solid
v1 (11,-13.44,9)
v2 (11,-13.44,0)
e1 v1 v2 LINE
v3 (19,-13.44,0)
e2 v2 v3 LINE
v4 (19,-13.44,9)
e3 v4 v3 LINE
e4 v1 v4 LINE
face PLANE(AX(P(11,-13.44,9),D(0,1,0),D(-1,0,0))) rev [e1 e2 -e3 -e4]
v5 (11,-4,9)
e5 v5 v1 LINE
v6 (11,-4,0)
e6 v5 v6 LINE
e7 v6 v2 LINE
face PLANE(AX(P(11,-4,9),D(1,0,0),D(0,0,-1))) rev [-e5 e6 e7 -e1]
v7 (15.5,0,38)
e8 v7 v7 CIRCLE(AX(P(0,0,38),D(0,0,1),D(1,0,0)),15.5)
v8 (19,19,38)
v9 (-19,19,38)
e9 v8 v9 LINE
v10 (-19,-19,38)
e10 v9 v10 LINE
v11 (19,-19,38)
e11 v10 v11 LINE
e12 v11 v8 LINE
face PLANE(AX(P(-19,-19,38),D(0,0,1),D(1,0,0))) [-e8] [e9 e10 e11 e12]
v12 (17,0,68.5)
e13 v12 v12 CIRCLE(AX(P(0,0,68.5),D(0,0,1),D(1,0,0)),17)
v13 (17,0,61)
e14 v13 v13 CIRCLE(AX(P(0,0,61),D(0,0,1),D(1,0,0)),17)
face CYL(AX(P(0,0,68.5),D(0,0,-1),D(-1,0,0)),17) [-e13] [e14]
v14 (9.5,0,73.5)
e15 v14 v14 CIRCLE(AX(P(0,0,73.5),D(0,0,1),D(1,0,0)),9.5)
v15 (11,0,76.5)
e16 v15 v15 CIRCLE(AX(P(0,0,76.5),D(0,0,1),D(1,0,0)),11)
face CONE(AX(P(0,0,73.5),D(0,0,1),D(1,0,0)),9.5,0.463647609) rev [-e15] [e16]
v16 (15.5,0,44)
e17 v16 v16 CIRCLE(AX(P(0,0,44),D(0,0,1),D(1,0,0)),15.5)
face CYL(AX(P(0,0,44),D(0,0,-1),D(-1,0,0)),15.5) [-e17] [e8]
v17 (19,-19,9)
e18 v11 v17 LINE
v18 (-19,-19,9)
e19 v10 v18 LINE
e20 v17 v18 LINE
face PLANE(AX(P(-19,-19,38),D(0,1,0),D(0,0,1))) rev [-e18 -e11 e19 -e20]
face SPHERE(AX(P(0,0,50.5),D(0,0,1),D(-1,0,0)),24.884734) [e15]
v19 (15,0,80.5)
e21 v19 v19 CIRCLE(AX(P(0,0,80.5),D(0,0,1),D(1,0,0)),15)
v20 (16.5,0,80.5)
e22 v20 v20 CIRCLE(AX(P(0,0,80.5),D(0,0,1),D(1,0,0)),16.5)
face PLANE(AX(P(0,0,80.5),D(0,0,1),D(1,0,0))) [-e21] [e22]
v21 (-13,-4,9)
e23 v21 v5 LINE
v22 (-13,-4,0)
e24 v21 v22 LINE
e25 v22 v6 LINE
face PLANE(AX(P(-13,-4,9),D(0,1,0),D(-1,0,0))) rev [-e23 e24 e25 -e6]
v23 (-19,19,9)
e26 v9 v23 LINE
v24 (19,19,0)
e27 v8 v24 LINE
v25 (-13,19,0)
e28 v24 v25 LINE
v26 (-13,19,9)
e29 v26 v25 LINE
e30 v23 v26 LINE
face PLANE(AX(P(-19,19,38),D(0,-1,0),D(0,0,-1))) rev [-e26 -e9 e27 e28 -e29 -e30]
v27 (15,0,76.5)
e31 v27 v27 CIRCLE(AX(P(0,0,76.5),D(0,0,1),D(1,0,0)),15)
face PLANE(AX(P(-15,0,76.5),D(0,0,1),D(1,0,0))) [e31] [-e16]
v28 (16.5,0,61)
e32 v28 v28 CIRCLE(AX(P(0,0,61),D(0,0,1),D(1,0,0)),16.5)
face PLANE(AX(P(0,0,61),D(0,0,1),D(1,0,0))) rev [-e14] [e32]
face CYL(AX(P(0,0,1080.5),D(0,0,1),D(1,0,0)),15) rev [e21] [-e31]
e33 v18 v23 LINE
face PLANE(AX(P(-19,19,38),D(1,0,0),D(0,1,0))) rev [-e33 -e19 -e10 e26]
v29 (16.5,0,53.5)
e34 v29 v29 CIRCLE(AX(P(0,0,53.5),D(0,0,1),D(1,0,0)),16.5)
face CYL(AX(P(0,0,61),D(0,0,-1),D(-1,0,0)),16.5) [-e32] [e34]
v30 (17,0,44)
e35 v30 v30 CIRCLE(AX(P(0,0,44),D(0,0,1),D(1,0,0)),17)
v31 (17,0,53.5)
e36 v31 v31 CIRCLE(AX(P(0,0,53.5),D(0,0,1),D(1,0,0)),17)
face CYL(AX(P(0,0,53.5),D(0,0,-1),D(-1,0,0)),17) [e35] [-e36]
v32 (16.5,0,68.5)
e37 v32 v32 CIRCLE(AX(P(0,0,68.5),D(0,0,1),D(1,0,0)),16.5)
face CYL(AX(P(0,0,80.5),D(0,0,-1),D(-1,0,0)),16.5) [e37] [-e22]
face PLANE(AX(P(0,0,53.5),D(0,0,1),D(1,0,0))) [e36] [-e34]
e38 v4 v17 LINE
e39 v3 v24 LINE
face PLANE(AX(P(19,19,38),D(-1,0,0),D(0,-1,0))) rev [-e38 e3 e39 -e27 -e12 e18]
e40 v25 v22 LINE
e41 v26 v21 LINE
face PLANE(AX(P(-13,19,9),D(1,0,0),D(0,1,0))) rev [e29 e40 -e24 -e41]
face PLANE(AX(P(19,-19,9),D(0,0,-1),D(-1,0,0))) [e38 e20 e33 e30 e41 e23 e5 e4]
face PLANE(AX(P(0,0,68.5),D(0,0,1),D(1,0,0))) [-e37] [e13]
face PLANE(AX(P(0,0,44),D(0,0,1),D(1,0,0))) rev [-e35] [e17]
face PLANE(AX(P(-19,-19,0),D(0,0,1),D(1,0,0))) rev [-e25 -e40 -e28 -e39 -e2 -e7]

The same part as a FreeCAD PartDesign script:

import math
import FreeCAD as App
import Part
import Sketcher
from FreeCAD import Vector
Q = App.Units.Quantity

doc = App.newDocument("Part")
body = doc.addObject("PartDesign::Body", "Body")

# Sketch on XY plane
sketch1 = doc.addObject("Sketcher::SketchObject", "Sketch")
body.addObject(sketch1)
sketch1.AttachmentSupport = (doc.XY_Plane, [""])
sketch1.MapMode = "FlatFace"
sketch1.addGeometry(Part.LineSegment(Vector(-19, 19, 0), Vector(-19, -19, 0)), False)
sketch1.addGeometry(Part.LineSegment(Vector(-19, -19, 0), Vector(19, -19, 0)), False)
sketch1.addGeometry(Part.LineSegment(Vector(19, -19, 0), Vector(19, 19, 0)), False)
sketch1.addGeometry(Part.LineSegment(Vector(19, 19, 0), Vector(-19, 19, 0)), False)
sketch1.addConstraint(Sketcher.Constraint("Coincident", 0, 2, 1, 1))
sketch1.addConstraint(Sketcher.Constraint("Coincident", 1, 2, 2, 1))
sketch1.addConstraint(Sketcher.Constraint("Coincident", 2, 2, 3, 1))
sketch1.addConstraint(Sketcher.Constraint("Coincident", 3, 2, 0, 1))
sketch1.addConstraint(Sketcher.Constraint("Vertical", 0))
sketch1.addConstraint(Sketcher.Constraint("Horizontal", 1))
sketch1.addConstraint(Sketcher.Constraint("Vertical", 2))
sketch1.addConstraint(Sketcher.Constraint("Horizontal", 3))
sketch1.addConstraint(Sketcher.Constraint("Symmetric", 0, 2, 2, 2, -1, 1))
sketch1.addConstraint(Sketcher.Constraint("Equal", 3, 0))
sketch1.addConstraint(Sketcher.Constraint("DistanceX", 1, 1, 1, 2, Q("38 mm")))
pad1 = doc.addObject("PartDesign::Pad", "Pad")
body.addObject(pad1)
pad1.Profile = sketch1
pad1.Length = 38

# Sketch on XY plane
sketch2 = doc.addObject("Sketcher::SketchObject", "Sketch001")
body.addObject(sketch2)
sketch2.AttachmentSupport = (doc.XY_Plane, [""])
sketch2.MapMode = "FlatFace"
sketch2.AttachmentOffset = App.Placement(Vector(0, 0, 38), App.Rotation())
sketch2.addGeometry(Part.Circle(Vector(0, 0, 0), Vector(0, 0, 1), 16), False)
sketch2.addConstraint(Sketcher.Constraint("Coincident", 0, 3, -1, 1))
sketch2.addConstraint(Sketcher.Constraint("Diameter", 0, Q("31 mm")))
pad2 = doc.addObject("PartDesign::Pad", "Pad001")
body.addObject(pad2)
pad2.Profile = sketch2
pad2.Length = 6

# Sketch on XY plane
sketch3 = doc.addObject("Sketcher::SketchObject", "Sketch002")
body.addObject(sketch3)
sketch3.AttachmentSupport = (doc.XY_Plane, [""])
sketch3.MapMode = "FlatFace"
sketch3.AttachmentOffset = App.Placement(Vector(0, 0, 44), App.Rotation())
sketch3.addGeometry(Part.Circle(Vector(0, 0, 0), Vector(0, 0, 1), 17), False)
sketch3.addConstraint(Sketcher.Constraint("Coincident", 0, 3, -1, 1))
sketch3.addConstraint(Sketcher.Constraint("Diameter", 0, Q("34 mm")))
pad3 = doc.addObject("PartDesign::Pad", "Pad002")
body.addObject(pad3)
pad3.Profile = sketch3
pad3.Length = 9.5

# Sketch on XY plane
sketch4 = doc.addObject("Sketcher::SketchObject", "Sketch003")
body.addObject(sketch4)
sketch4.AttachmentSupport = (doc.XY_Plane, [""])
sketch4.MapMode = "FlatFace"
sketch4.AttachmentOffset = App.Placement(Vector(0, 0, 53.5), App.Rotation())
sketch4.addGeometry(Part.Circle(Vector(0, 0, 0), Vector(0, 0, 1), 16), False)
sketch4.addConstraint(Sketcher.Constraint("Coincident", 0, 3, -1, 1))
sketch4.addConstraint(Sketcher.Constraint("Diameter", 0, Q("33 mm")))
pad4 = doc.addObject("PartDesign::Pad", "Pad003")
body.addObject(pad4)
pad4.Profile = sketch4
pad4.Length = 7.5

# Sketch on XY plane
sketch5 = doc.addObject("Sketcher::SketchObject", "Sketch004")
body.addObject(sketch5)
sketch5.AttachmentSupport = (doc.XY_Plane, [""])
sketch5.MapMode = "FlatFace"
sketch5.AttachmentOffset = App.Placement(Vector(0, 0, 61), App.Rotation())
sketch5.addGeometry(Part.Circle(Vector(0, 0, 0), Vector(0, 0, 1), 17), False)
sketch5.addConstraint(Sketcher.Constraint("Coincident", 0, 3, -1, 1))
sketch5.addConstraint(Sketcher.Constraint("Diameter", 0, Q("34 mm")))
pad5 = doc.addObject("PartDesign::Pad", "Pad004")
body.addObject(pad5)
pad5.Profile = sketch5
pad5.Length = 7.5

# Sketch on XY plane
sketch6 = doc.addObject("Sketcher::SketchObject", "Sketch005")
body.addObject(sketch6)
sketch6.AttachmentSupport = (doc.XY_Plane, [""])
sketch6.MapMode = "FlatFace"
sketch6.AttachmentOffset = App.Placement(Vector(0, 0, 68.5), App.Rotation())
sketch6.addGeometry(Part.Circle(Vector(0, 0, 0), Vector(0, 0, 1), 16), False)
sketch6.addConstraint(Sketcher.Constraint("Coincident", 0, 3, -1, 1))
sketch6.addConstraint(Sketcher.Constraint("Diameter", 0, Q("33 mm")))
pad6 = doc.addObject("PartDesign::Pad", "Pad005")
body.addObject(pad6)
pad6.Profile = sketch6
pad6.Length = 12

# Sketch on XZ plane
sketch7 = doc.addObject("Sketcher::SketchObject", "Sketch006")
body.addObject(sketch7)
sketch7.AttachmentSupport = (doc.XZ_Plane, [""])
sketch7.MapMode = "FlatFace"
sketch7.addGeometry(Part.LineSegment(Vector(-15, 80.5, 0), Vector(0, 80.5, 0)), False)
sketch7.addGeometry(Part.LineSegment(Vector(0, 80.5, 0), Vector(0, 75.4, 0)), False)
sketch7.addGeometry(Part.ArcOfCircle(Part.Circle(Vector(0, 50.5, 0), Vector(0, 0, 1), 24.9), math.radians(90), math.radians(112)), False)
sketch7.addGeometry(Part.LineSegment(Vector(-9.5, 73.5, 0), Vector(-11, 76.5, 0)), False)
sketch7.addGeometry(Part.LineSegment(Vector(-11, 76.5, 0), Vector(-15, 76.5, 0)), False)
sketch7.addGeometry(Part.LineSegment(Vector(-15, 76.5, 0), Vector(-15, 80.5, 0)), False)
sketch7.addConstraint(Sketcher.Constraint("Coincident", 0, 2, 1, 1))
sketch7.addConstraint(Sketcher.Constraint("Coincident", 1, 2, 2, 1))
sketch7.addConstraint(Sketcher.Constraint("Coincident", 2, 2, 3, 1))
sketch7.addConstraint(Sketcher.Constraint("Coincident", 3, 2, 4, 1))
sketch7.addConstraint(Sketcher.Constraint("Coincident", 4, 2, 5, 1))
sketch7.addConstraint(Sketcher.Constraint("Coincident", 5, 2, 0, 1))
sketch7.addConstraint(Sketcher.Constraint("Horizontal", 0))
sketch7.addConstraint(Sketcher.Constraint("Vertical", 1))
sketch7.addConstraint(Sketcher.Constraint("Horizontal", 4))
sketch7.addConstraint(Sketcher.Constraint("Vertical", 5))
sketch7.addConstraint(Sketcher.Constraint("PointOnObject", 2, 3, -2))
sketch7.addConstraint(Sketcher.Constraint("PointOnObject", 0, 2, -2))
sketch7.addConstraint(Sketcher.Constraint("Equal", 4, 5))
sketch7.addConstraint(Sketcher.Constraint("DistanceX", 0, 1, 0, 2, Q("15 mm")))
sketch7.addConstraint(Sketcher.Constraint("DistanceX", 4, 2, 4, 1, Q("4 mm")))
sketch7.addConstraint(Sketcher.Constraint("DistanceY", 2, 3, 0, 2, Q("30 mm")))
sketch7.addConstraint(Sketcher.Constraint("DistanceY", 2, 2, 0, 2, Q("7 mm")))
sketch7.addConstraint(Sketcher.Constraint("DistanceY", -1, 1, 2, 3, Q("50.5 mm")))
sketch7.addConstraint(Sketcher.Constraint("DistanceX", 2, 2, -1, 1, Q("9.5 mm")))
groove = doc.addObject("PartDesign::Groove", "Groove")
body.addObject(groove)
groove.Profile = sketch7
groove.ReferenceAxis = (sketch7, ["V_Axis"])
groove.Angle = 360

# Sketch on XY plane
sketch8 = doc.addObject("Sketcher::SketchObject", "Sketch007")
body.addObject(sketch8)
sketch8.AttachmentSupport = (doc.XY_Plane, [""])
sketch8.MapMode = "FlatFace"
sketch8.addGeometry(Part.LineSegment(Vector(19, -19, 0), Vector(-19, -19, 0)), False)
sketch8.addGeometry(Part.LineSegment(Vector(-19, -19, 0), Vector(-19, 19, 0)), False)
sketch8.addGeometry(Part.LineSegment(Vector(-19, 19, 0), Vector(-13, 19, 0)), False)
sketch8.addGeometry(Part.LineSegment(Vector(-13, 19, 0), Vector(-13, -4, 0)), False)
sketch8.addGeometry(Part.LineSegment(Vector(-13, -4, 0), Vector(11, -4, 0)), False)
sketch8.addGeometry(Part.LineSegment(Vector(11, -4, 0), Vector(11, -13, 0)), False)
sketch8.addGeometry(Part.LineSegment(Vector(11, -13, 0), Vector(19, -13, 0)), False)
sketch8.addGeometry(Part.LineSegment(Vector(19, -13, 0), Vector(19, -19, 0)), False)
sketch8.addConstraint(Sketcher.Constraint("Coincident", 0, 2, 1, 1))
sketch8.addConstraint(Sketcher.Constraint("Coincident", 1, 2, 2, 1))
sketch8.addConstraint(Sketcher.Constraint("Coincident", 2, 2, 3, 1))
sketch8.addConstraint(Sketcher.Constraint("Coincident", 3, 2, 4, 1))
sketch8.addConstraint(Sketcher.Constraint("Coincident", 4, 2, 5, 1))
sketch8.addConstraint(Sketcher.Constraint("Coincident", 5, 2, 6, 1))
sketch8.addConstraint(Sketcher.Constraint("Coincident", 6, 2, 7, 1))
sketch8.addConstraint(Sketcher.Constraint("Coincident", 7, 2, 0, 1))
sketch8.addConstraint(Sketcher.Constraint("Horizontal", 0))
sketch8.addConstraint(Sketcher.Constraint("Vertical", 1))
sketch8.addConstraint(Sketcher.Constraint("Horizontal", 2))
sketch8.addConstraint(Sketcher.Constraint("Vertical", 3))
sketch8.addConstraint(Sketcher.Constraint("Horizontal", 4))
sketch8.addConstraint(Sketcher.Constraint("Vertical", 5))
sketch8.addConstraint(Sketcher.Constraint("Horizontal", 6))
sketch8.addConstraint(Sketcher.Constraint("Vertical", 7))
sketch8.addConstraint(Sketcher.Constraint("Symmetric", 1, 2, 7, 2, -1, 1))
sketch8.addConstraint(Sketcher.Constraint("Equal", 0, 1))
sketch8.addConstraint(Sketcher.Constraint("DistanceX", 0, 2, 0, 1, Q("38 mm")))
sketch8.addConstraint(Sketcher.Constraint("DistanceX", 2, 1, 2, 2, Q("6 mm")))
sketch8.addConstraint(Sketcher.Constraint("DistanceX", 4, 1, 4, 2, Q("24 mm")))
sketch8.addConstraint(Sketcher.Constraint("DistanceY", 3, 2, 3, 1, Q("23 mm")))
sketch8.addConstraint(Sketcher.Constraint("DistanceY", 5, 2, 5, 1, Q("9.44 mm")))
pocket1 = doc.addObject("PartDesign::Pocket", "Pocket")
body.addObject(pocket1)
pocket1.Profile = sketch8
pocket1.Length = 9
pocket1.Reversed = True

doc.recompute()
